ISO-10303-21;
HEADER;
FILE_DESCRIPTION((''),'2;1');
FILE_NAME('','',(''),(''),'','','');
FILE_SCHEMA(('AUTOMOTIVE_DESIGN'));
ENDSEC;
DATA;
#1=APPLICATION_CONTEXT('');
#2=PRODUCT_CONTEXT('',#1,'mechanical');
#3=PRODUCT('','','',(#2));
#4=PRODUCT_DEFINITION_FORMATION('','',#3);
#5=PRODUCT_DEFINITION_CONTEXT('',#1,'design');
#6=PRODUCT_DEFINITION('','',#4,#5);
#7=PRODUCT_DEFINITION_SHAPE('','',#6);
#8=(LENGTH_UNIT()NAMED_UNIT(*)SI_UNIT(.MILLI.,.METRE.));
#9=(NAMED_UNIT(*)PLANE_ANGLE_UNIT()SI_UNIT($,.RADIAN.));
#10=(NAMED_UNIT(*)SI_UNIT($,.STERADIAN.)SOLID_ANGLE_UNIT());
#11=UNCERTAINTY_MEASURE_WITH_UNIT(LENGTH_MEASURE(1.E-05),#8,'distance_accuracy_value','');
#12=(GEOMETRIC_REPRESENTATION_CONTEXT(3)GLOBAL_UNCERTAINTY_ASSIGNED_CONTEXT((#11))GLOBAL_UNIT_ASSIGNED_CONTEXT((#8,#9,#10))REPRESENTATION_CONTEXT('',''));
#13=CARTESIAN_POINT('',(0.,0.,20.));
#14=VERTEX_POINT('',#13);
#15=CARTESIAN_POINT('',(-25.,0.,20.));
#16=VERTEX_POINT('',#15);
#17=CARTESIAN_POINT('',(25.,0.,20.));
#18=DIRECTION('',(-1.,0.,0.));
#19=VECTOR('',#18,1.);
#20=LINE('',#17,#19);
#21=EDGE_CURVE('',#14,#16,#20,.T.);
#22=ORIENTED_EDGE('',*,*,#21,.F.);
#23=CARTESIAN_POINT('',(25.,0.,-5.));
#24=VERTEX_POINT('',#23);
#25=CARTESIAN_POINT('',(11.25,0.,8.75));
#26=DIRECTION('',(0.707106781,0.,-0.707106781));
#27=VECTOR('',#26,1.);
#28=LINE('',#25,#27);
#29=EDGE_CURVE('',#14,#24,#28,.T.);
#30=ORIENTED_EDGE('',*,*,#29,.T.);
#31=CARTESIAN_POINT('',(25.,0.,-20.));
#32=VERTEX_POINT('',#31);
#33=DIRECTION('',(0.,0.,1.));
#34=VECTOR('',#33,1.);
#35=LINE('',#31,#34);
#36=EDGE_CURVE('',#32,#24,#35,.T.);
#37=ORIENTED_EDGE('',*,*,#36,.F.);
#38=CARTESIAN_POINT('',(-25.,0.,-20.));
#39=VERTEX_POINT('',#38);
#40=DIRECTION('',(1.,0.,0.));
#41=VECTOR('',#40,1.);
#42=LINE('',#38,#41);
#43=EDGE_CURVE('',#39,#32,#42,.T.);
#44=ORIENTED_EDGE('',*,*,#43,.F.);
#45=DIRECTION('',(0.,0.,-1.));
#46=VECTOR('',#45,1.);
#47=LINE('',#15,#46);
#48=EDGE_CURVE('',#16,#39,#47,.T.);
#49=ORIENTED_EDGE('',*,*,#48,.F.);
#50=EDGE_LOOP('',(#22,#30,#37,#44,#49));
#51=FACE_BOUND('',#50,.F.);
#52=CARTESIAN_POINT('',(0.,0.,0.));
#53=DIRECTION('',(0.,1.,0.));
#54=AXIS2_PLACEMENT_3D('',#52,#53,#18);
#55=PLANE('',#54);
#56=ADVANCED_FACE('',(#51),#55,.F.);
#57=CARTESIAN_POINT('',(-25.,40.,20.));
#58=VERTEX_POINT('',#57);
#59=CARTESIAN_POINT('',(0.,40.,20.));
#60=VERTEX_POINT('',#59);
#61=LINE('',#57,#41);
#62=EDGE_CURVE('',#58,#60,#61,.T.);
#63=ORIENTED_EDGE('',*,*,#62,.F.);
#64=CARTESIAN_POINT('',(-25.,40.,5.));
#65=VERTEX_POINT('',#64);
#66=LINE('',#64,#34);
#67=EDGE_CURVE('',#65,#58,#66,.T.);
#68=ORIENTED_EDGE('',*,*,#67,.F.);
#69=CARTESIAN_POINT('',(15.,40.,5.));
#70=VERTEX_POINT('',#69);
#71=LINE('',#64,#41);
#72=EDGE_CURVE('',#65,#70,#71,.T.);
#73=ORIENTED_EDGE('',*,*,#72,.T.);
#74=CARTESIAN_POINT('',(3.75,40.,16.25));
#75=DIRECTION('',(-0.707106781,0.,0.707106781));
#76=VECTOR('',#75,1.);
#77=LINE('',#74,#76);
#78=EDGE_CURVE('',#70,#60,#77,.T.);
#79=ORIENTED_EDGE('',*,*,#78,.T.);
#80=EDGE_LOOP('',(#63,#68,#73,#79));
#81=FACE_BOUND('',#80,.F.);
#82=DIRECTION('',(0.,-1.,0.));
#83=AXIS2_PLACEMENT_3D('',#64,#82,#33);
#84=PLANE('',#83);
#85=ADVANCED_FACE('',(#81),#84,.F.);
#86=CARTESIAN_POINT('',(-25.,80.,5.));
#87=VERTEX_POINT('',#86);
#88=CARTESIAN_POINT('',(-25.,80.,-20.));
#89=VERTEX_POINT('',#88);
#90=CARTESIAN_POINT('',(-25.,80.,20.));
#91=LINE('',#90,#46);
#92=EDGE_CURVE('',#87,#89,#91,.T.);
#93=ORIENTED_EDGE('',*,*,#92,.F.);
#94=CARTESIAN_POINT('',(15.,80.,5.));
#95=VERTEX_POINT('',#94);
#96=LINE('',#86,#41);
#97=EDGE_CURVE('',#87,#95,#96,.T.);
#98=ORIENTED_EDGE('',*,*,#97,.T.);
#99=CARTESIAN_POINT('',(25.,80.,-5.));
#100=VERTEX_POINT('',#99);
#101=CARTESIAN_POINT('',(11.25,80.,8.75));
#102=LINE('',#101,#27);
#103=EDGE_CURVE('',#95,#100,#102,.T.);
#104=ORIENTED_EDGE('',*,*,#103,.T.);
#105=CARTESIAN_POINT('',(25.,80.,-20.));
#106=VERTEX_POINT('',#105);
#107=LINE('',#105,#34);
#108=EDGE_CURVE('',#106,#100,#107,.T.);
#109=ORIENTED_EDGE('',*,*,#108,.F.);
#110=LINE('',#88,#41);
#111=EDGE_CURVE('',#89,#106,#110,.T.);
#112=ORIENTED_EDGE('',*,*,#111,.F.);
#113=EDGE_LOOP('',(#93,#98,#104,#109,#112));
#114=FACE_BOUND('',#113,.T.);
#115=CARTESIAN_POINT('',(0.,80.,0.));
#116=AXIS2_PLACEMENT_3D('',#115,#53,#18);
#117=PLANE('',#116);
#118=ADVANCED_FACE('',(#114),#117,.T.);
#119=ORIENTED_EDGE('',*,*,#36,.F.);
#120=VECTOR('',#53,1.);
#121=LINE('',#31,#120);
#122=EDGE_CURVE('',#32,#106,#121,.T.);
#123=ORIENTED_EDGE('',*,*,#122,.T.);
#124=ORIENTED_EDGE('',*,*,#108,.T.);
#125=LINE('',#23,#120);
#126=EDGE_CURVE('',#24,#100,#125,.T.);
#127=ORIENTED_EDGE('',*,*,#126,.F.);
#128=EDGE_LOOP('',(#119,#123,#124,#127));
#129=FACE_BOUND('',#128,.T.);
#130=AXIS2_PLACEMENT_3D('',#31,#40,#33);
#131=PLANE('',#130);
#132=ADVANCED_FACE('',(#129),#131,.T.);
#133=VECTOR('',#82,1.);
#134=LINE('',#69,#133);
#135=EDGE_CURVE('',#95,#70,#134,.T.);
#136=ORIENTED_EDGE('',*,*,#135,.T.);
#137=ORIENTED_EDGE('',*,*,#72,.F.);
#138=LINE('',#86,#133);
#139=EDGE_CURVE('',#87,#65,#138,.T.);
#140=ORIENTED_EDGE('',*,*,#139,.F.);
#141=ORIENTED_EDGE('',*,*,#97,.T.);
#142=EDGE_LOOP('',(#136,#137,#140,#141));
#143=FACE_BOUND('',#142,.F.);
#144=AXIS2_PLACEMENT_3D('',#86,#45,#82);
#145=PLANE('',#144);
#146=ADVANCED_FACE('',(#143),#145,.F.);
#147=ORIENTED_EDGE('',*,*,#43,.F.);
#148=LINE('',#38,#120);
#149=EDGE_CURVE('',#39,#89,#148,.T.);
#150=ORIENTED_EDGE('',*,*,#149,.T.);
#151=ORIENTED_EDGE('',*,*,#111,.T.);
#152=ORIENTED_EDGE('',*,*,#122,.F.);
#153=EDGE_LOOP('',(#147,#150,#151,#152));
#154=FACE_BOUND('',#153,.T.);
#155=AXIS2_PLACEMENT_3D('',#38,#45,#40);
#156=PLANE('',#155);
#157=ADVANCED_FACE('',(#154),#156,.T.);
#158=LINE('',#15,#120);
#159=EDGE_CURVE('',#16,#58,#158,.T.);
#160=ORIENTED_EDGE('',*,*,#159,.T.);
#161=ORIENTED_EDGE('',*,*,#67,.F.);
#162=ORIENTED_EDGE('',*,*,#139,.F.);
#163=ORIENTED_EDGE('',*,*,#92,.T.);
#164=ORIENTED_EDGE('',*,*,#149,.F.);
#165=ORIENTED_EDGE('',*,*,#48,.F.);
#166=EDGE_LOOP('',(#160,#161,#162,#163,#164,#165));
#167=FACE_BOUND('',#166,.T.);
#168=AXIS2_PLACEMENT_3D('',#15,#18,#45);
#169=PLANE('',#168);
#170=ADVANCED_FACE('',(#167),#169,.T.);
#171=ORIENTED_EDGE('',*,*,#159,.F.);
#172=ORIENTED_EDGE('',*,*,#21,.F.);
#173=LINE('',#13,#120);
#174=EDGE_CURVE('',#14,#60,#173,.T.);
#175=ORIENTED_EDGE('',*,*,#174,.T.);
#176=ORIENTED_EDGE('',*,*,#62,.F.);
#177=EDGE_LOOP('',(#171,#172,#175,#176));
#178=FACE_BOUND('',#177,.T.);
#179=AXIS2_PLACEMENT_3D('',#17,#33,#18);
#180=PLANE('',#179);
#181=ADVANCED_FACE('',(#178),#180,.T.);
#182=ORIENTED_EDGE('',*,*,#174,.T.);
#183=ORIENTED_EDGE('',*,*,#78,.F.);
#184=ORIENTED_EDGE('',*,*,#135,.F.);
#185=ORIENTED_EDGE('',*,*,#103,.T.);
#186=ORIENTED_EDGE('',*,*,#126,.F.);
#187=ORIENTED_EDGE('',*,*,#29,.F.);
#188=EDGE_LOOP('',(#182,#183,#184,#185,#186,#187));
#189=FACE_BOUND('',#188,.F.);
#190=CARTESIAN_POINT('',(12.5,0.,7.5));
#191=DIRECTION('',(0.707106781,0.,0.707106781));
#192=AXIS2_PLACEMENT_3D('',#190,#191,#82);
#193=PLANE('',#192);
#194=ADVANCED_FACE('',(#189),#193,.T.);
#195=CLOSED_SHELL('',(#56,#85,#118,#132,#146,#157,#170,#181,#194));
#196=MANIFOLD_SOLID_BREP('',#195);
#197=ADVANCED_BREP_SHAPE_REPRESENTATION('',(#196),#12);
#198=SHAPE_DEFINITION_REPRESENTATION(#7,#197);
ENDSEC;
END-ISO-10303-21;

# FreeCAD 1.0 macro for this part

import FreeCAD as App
import Part
import Sketcher
from FreeCAD import Vector
Q = App.Units.Quantity


def edges_at(feature, points):
    """Names of the edges that pass closest to the given points."""
    edges = feature.Shape.Edges
    near = lambda p: min(range(len(edges)), key=lambda i: edges[i].distToShape(Part.Vertex(*p))[0])
    return sorted({f"Edge{near(p) + 1}" for p in points})


def add_polygon(sketch, points):
    """Adds a closed chain of lines whose ends are joined by coincident constraints."""
    first, n = sketch.GeometryCount, len(points)
    for a, b in zip(points, points[1:] + points[:1]):
        sketch.addGeometry(Part.LineSegment(App.Vector(*a, 0), App.Vector(*b, 0)), False)
    for i in range(n):
        sketch.addConstraint(Sketcher.Constraint("Coincident", first + i, 2, first + (i + 1) % n, 1))

doc = App.newDocument("Part")
body = doc.addObject("PartDesign::Body", "Body")

sketch1 = body.newObject("Sketcher::SketchObject", "Sketch")
sketch1.AttachmentSupport = (doc.getObject("XZ_Plane"), [""])
sketch1.MapMode = "FlatFace"
add_polygon(sketch1, [(-25, 20), (25, 20), (25, -20), (-25, -20)])
sketch1.addConstraint(Sketcher.Constraint("Horizontal", 0))
sketch1.addConstraint(Sketcher.Constraint("Vertical", 1))
sketch1.addConstraint(Sketcher.Constraint("Horizontal", 2))
sketch1.addConstraint(Sketcher.Constraint("Vertical", 3))
sketch1.addConstraint(Sketcher.Constraint("Symmetric", 0, 2, 2, 2, -1, 1))
sketch1.addConstraint(Sketcher.Constraint("DistanceX", 0, 1, 0, 2, Q("50 mm")))
sketch1.addConstraint(Sketcher.Constraint("DistanceY", 1, 2, 1, 1, Q("40 mm")))
pad1 = body.newObject("PartDesign::Pad", "Pad")
pad1.Profile = sketch1
pad1.Length = 80
pad1.Reversed = True
doc.recompute()

chamfer = body.newObject("PartDesign::Chamfer", "Chamfer")
chamfer.Base = (pad1, edges_at(pad1, [(25, 40, 20)]))
chamfer.Size = 25

sketch2 = body.newObject("Sketcher::SketchObject", "Sketch001")
sketch2.AttachmentSupport = (doc.getObject("YZ_Plane"), [""])
sketch2.MapMode = "FlatFace"
sketch2.AttachmentOffset = App.Placement(Vector(0, 0, -25), App.Rotation())
add_polygon(sketch2, [(80, 20), (80, 5), (40, 5), (40, 20)])
sketch2.addConstraint(Sketcher.Constraint("Vertical", 0))
sketch2.addConstraint(Sketcher.Constraint("Horizontal", 1))
sketch2.addConstraint(Sketcher.Constraint("Vertical", 2))
sketch2.addConstraint(Sketcher.Constraint("Horizontal", 3))
sketch2.addConstraint(Sketcher.Constraint("DistanceX", 1, 2, 1, 1, Q("40 mm")))
sketch2.addConstraint(Sketcher.Constraint("DistanceY", 0, 2, 0, 1, Q("15 mm")))
sketch2.addConstraint(Sketcher.Constraint("DistanceX", -1, 1, 1, 2, Q("40 mm")))
sketch2.addConstraint(Sketcher.Constraint("DistanceY", -1, 1, 0, 2, Q("5 mm")))
pocket1 = body.newObject("PartDesign::Pocket", "Pocket")
pocket1.Profile = sketch2
pocket1.Length = 80
pocket1.Reversed = True

doc.recompute()
